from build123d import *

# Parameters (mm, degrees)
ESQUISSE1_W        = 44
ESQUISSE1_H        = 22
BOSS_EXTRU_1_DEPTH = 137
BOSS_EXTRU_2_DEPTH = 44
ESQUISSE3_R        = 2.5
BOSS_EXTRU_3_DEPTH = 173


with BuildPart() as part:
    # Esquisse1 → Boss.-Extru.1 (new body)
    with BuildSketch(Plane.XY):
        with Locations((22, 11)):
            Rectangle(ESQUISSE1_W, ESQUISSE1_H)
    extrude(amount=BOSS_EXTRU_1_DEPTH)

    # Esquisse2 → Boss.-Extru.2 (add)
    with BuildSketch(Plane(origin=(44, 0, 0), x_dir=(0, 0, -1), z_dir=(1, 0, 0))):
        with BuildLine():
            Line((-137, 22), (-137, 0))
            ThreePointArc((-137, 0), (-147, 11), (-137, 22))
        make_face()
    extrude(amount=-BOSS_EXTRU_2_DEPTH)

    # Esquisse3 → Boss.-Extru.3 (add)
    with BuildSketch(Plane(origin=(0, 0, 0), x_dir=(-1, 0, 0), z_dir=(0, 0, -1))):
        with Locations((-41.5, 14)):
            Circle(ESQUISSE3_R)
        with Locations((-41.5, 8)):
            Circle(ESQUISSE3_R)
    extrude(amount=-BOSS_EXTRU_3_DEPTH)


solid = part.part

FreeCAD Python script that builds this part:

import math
import FreeCAD as App
import Part
import Sketcher
Q = App.Units.Quantity

doc = App.newDocument("Part")
body = doc.addObject("PartDesign::Body", "Body")

# Sketch on XY plane
sketch1 = doc.addObject("Sketcher::SketchObject", "Sketch")
body.addObject(sketch1)
sketch1.AttachmentSupport = (doc.XY_Plane, [""])
sketch1.MapMode = "FlatFace"
sketch1.addGeometry([
    Part.LineSegment(App.Vector(0, 22, 0), App.Vector(0, 0, 0)),
    Part.LineSegment(App.Vector(0, 0, 0), App.Vector(44, 0, 0)),
    Part.LineSegment(App.Vector(44, 0, 0), App.Vector(44, 22, 0)),
    Part.LineSegment(App.Vector(44, 22, 0), App.Vector(0, 22, 0)),
], False)
sketch1.addConstraint([
    Sketcher.Constraint("Coincident", 0, 2, 1, 1),
    Sketcher.Constraint("Coincident", 1, 2, 2, 1),
    Sketcher.Constraint("Coincident", 2, 2, 3, 1),
    Sketcher.Constraint("Coincident", 3, 2, 0, 1),
    Sketcher.Constraint("Vertical", 0),
    Sketcher.Constraint("Horizontal", 1),
    Sketcher.Constraint("Vertical", 2),
    Sketcher.Constraint("Horizontal", 3),
    Sketcher.Constraint("Coincident", 0, 2, -1, 1),
    Sketcher.Constraint("DistanceX", 1, 1, 1, 2, Q("44 mm")),
    Sketcher.Constraint("DistanceY", 0, 2, 0, 1, Q("22 mm")),
])
pad1 = doc.addObject("PartDesign::Pad", "Pad")
body.addObject(pad1)
pad1.Profile = sketch1
pad1.Length = 137

# Sketch on YZ plane
sketch2 = doc.addObject("Sketcher::SketchObject", "Sketch001")
body.addObject(sketch2)
sketch2.AttachmentSupport = (doc.YZ_Plane, [""])
sketch2.MapMode = "FlatFace"
sketch2.AttachmentOffset = App.Placement(App.Vector(0, 0, 44), App.Rotation())
sketch2.addGeometry([
    Part.LineSegment(App.Vector(0, 137, 0), App.Vector(22, 137, 0)),
    Part.ArcOfCircle(Part.Circle(App.Vector(11, 135.95, 0), App.Vector(0, 0, 1), 11.05), math.radians(5.452622), math.radians(174.547378)),
], False)
sketch2.addConstraint([
    Sketcher.Constraint("Coincident", 0, 1, 1, 2),
    Sketcher.Constraint("Coincident", 1, 1, 0, 2),
    Sketcher.Constraint("Horizontal", 0),
    Sketcher.Constraint("PointOnObject", 0, 1, -2),
    Sketcher.Constraint("DistanceX", 0, 1, 0, 2, Q("22 mm")),
    Sketcher.Constraint("Radius", 1, Q("11.05 mm")),
    Sketcher.Constraint("DistanceY", -1, 1, 0, 1, Q("137 mm")),
])
pad2 = doc.addObject("PartDesign::Pad", "Pad001")
body.addObject(pad2)
pad2.Profile = sketch2
pad2.Length = 44
pad2.Reversed = True

# Sketch on XY plane
sketch3 = doc.addObject("Sketcher::SketchObject", "Sketch002")
body.addObject(sketch3)
sketch3.AttachmentSupport = (doc.XY_Plane, [""])
sketch3.MapMode = "FlatFace"
sketch3.addGeometry([
    Part.Circle(App.Vector(41.5, 14, 0), App.Vector(0, 0, 1), 2.5),
    Part.Circle(App.Vector(41.5, 8, 0), App.Vector(0, 0, 1), 2.5),
], False)
sketch3.addConstraint([
    Sketcher.Constraint("Equal", 0, 1),
    Sketcher.Constraint("Vertical", 0, 3, 1, 3),
    Sketcher.Constraint("Diameter", 0, Q("5 mm")),
    Sketcher.Constraint("DistanceY", -1, 1, 0, 3, Q("14 mm")),
    Sketcher.Constraint("DistanceY", -1, 1, 1, 3, Q("8 mm")),
    Sketcher.Constraint("DistanceX", -1, 1, 0, 3, Q("41.5 mm")),
])
pad3 = doc.addObject("PartDesign::Pad", "Pad002")
body.addObject(pad3)
pad3.Profile = sketch3
pad3.Length = 173

doc.recompute()
